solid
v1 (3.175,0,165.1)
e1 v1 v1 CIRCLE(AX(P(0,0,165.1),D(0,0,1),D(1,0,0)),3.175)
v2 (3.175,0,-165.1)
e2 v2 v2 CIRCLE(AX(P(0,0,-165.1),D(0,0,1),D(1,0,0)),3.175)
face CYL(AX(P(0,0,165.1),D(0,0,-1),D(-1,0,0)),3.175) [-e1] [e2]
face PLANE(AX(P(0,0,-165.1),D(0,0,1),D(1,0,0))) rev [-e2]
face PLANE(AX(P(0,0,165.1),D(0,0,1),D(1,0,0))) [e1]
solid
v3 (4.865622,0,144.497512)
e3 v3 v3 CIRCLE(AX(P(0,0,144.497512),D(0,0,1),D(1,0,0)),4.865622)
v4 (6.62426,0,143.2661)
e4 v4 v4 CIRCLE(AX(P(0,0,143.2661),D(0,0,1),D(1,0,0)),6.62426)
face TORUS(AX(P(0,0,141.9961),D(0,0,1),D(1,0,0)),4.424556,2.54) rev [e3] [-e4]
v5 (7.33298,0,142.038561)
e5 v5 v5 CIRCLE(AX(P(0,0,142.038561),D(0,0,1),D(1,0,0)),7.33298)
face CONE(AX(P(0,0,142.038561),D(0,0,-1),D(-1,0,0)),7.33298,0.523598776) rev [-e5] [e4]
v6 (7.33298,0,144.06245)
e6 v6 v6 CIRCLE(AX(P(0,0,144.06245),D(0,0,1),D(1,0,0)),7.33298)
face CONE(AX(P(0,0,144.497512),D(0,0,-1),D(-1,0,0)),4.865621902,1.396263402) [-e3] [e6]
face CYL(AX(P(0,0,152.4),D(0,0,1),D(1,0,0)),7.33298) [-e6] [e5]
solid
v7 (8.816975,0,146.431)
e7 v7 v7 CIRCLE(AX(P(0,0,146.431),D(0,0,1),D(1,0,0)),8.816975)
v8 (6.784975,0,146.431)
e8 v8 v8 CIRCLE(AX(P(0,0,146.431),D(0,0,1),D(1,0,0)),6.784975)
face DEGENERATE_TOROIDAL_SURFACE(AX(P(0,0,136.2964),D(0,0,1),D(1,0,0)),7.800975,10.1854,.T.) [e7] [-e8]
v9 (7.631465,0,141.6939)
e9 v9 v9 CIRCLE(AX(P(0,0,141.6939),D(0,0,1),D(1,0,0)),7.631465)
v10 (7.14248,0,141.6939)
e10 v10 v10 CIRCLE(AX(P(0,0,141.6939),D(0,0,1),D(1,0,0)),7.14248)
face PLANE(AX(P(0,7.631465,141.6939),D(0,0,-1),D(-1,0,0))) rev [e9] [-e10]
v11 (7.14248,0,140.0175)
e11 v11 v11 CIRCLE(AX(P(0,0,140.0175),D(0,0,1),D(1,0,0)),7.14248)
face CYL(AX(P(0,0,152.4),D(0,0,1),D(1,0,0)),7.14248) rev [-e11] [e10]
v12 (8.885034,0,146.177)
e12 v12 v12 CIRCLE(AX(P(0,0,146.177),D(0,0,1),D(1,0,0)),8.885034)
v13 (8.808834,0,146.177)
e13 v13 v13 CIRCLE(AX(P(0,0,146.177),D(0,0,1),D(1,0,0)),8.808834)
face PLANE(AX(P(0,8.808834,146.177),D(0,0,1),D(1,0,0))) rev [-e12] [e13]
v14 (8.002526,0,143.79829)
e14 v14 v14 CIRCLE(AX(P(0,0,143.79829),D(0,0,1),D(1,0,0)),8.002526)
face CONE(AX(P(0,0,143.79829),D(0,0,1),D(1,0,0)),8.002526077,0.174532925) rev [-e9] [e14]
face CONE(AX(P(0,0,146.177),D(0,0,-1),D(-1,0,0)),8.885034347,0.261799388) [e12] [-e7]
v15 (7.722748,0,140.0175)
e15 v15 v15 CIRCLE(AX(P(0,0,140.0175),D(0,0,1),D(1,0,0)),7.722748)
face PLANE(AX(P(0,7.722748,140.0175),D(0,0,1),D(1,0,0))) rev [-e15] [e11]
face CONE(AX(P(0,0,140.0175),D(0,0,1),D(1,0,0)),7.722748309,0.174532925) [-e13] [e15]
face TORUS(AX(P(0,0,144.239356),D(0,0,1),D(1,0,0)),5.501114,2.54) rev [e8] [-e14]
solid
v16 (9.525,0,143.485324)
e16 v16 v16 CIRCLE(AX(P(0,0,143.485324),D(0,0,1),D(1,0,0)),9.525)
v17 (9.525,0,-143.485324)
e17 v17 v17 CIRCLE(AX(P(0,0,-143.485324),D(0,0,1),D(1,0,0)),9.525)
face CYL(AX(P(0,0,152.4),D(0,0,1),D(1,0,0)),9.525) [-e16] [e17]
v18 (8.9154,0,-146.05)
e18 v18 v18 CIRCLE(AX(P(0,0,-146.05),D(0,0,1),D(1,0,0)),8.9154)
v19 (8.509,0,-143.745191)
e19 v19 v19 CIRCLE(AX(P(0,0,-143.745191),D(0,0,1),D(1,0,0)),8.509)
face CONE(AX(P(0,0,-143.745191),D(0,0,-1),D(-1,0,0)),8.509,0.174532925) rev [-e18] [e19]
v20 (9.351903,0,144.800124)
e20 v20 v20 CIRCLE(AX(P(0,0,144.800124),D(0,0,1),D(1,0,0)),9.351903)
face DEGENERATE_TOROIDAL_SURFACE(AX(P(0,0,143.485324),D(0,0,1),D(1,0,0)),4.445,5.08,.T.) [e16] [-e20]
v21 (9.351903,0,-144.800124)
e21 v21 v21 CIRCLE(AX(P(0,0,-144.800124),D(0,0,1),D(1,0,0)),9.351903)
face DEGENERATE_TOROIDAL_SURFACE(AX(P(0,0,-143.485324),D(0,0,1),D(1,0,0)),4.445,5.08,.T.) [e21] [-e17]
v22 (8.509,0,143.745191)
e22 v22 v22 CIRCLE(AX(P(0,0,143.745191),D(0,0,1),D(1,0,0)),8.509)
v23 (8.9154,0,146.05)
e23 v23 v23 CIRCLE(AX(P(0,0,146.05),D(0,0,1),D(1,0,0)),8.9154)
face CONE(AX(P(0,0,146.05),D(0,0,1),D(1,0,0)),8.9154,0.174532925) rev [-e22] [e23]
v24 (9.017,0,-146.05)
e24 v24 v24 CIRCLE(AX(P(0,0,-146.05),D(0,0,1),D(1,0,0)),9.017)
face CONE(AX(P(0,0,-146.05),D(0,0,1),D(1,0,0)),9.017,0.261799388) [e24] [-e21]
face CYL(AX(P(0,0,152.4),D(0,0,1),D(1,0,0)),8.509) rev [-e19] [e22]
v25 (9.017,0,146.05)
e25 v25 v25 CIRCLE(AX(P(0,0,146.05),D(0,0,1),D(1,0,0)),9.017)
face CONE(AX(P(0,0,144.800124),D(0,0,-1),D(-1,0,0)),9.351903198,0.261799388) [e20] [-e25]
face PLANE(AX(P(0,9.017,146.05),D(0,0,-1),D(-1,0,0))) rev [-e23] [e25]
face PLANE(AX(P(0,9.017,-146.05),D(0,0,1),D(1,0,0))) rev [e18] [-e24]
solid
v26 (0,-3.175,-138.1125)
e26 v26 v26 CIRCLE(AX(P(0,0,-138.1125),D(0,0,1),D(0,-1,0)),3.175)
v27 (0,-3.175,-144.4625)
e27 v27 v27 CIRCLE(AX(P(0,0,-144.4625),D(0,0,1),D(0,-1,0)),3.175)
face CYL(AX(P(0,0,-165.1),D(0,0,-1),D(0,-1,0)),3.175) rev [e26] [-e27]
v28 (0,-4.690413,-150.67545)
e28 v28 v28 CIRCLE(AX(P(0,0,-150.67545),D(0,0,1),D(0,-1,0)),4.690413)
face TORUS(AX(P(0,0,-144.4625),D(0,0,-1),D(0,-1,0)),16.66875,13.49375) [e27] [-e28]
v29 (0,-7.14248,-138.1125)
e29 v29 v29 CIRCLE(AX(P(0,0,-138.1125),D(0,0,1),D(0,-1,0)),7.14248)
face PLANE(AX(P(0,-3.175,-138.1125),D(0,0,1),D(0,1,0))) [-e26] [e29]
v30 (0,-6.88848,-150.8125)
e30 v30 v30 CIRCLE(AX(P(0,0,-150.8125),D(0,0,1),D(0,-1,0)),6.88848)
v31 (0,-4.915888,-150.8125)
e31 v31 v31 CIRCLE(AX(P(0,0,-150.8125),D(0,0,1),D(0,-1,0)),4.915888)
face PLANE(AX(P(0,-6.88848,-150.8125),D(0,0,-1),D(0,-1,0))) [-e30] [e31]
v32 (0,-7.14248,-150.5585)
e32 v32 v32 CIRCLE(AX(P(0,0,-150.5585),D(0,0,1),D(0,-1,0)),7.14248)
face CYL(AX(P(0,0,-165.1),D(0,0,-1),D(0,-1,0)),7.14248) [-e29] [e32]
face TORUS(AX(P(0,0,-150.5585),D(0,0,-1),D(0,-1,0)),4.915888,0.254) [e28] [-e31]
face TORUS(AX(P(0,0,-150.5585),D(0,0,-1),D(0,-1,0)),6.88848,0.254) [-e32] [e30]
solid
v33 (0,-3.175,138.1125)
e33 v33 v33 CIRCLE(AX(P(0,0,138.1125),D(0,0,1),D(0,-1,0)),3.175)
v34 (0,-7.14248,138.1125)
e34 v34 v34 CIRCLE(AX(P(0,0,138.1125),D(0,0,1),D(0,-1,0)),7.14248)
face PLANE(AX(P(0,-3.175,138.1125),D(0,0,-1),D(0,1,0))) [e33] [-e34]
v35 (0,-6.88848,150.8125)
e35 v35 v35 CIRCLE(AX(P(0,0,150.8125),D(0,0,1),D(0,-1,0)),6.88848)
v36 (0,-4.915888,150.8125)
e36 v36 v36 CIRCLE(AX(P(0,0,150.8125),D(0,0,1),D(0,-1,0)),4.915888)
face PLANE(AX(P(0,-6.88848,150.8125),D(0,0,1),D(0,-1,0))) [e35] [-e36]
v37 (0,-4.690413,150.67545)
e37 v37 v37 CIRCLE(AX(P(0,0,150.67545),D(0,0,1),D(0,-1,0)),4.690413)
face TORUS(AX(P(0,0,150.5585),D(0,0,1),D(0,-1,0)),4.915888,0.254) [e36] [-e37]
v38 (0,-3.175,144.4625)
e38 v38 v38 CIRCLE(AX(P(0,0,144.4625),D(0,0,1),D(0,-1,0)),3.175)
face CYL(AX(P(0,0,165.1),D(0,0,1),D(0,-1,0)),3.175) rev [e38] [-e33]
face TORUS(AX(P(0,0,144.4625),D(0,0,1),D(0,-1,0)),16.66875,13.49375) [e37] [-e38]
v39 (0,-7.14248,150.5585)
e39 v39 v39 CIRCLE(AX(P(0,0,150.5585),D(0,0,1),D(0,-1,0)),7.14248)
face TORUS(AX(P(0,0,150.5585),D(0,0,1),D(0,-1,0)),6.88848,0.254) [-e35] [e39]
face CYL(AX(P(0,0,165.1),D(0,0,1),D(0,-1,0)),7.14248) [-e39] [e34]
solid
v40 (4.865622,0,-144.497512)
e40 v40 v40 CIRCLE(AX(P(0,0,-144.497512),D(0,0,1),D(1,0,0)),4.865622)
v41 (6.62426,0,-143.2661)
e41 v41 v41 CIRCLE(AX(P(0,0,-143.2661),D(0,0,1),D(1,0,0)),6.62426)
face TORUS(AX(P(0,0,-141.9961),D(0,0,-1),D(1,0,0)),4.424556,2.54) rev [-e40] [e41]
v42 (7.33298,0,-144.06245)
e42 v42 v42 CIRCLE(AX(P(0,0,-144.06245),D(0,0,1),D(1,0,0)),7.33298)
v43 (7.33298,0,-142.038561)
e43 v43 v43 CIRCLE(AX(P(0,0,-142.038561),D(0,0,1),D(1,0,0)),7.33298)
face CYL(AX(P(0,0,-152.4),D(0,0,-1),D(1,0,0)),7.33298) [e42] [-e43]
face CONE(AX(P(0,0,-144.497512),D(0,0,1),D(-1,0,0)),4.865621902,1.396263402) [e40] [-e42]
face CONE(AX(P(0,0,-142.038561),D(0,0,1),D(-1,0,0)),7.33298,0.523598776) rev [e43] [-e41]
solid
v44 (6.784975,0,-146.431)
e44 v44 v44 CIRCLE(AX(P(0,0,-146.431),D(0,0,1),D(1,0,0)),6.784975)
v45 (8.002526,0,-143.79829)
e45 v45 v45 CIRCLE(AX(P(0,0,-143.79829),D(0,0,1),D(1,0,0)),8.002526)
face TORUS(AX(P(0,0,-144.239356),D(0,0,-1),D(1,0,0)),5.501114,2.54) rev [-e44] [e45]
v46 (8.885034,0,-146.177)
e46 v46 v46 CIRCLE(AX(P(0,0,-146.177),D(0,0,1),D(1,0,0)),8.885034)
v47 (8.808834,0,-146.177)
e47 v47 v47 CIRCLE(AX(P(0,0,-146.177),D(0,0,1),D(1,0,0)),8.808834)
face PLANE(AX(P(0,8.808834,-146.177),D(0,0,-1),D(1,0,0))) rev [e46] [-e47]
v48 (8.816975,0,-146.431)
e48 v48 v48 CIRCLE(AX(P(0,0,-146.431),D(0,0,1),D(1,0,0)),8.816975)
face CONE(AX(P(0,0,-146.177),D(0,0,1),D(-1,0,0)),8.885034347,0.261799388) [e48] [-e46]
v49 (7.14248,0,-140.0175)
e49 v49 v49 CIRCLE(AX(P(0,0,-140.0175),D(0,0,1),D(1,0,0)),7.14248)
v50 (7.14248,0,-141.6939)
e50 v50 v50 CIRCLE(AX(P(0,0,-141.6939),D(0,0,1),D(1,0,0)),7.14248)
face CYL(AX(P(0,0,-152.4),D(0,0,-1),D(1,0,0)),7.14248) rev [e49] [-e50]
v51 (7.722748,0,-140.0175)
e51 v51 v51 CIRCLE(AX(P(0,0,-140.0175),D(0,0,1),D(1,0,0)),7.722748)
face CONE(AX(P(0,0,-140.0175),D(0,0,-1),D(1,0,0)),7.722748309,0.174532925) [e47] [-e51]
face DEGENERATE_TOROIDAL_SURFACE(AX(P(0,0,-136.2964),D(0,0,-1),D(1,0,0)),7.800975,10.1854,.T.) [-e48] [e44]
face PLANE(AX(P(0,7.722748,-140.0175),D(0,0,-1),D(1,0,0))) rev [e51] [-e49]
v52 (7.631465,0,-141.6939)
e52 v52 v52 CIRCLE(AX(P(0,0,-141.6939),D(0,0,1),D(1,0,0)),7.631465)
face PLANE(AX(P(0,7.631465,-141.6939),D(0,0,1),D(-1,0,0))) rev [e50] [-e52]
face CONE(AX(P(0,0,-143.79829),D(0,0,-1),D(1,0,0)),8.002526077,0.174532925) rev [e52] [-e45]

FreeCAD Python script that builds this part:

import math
import FreeCAD as App
import Part
import Sketcher

V = App.Vector
Q = App.Units.Quantity

doc = App.newDocument("Part")
body = doc.addObject("PartDesign::Body", "Body")

# Sketch on XY plane
sketch1 = body.newObject("Sketcher::SketchObject", "Sketch")
sketch1.AttachmentSupport = (doc.getObject("XY_Plane"), [""])
sketch1.MapMode = "FlatFace"
sketch1.addGeometry(Part.Circle(V(0, 0, 0), V(0, 0, 1), 3.2), False)
sketch1.addConstraint([
    Sketcher.Constraint("Coincident", 0, 3, -1, 1),
    Sketcher.Constraint("Diameter", 0, Q("0.25 in")),
])
pad1 = body.newObject("PartDesign::Pad", "Pad")
pad1.Profile = sketch1
pad1.Type = "TwoLengths"
pad1.Length = Q("6.5 in")
pad1.Length2 = Q("6.5 in")
body2 = doc.addObject("PartDesign::Body", "Body001")

# Sketch on YZ plane
sketch2 = body2.newObject("Sketcher::SketchObject", "Sketch001")
sketch2.AttachmentSupport = (doc.getObject("YZ_Plane001"), [""])
sketch2.MapMode = "FlatFace"
sketch2.addGeometry([
    Part.LineSegment(V(7.14, 150.56, 0), V(7.14, 138.11, 0)),  # 0
    Part.LineSegment(V(7.14, 138.11, 0), V(3.17, 138.11, 0)),  # 1
    Part.LineSegment(V(3.17, 138.11, 0), V(3.17, 144.46, 0)),  # 2
    Part.ArcOfCircle(Part.Circle(V(16.67, 144.46, 0), V(0, 0, 1), 13.49), math.radians(153), math.radians(180)),  # 3
    Part.ArcOfCircle(Part.Circle(V(4.92, 150.56, 0), V(0, 0, 1), 0.25), math.radians(90), math.radians(153)),  # 4
    Part.LineSegment(V(4.92, 150.81, 0), V(6.89, 150.81, 0)),  # 5
    Part.ArcOfCircle(Part.Circle(V(6.89, 150.56, 0), V(0, 0, 1), 0.25), math.radians(0), math.radians(90)),  # 6
], False)
sketch2.addConstraint([
    Sketcher.Constraint("Coincident", 0, 2, 1, 1),
    Sketcher.Constraint("Coincident", 1, 2, 2, 1),
    Sketcher.Constraint("Tangent", 2, 2, 3, 2),
    Sketcher.Constraint("Tangent", 3, 1, 4, 2),
    Sketcher.Constraint("Tangent", 4, 1, 5, 1),
    Sketcher.Constraint("Tangent", 5, 2, 6, 2),
    Sketcher.Constraint("Tangent", 6, 1, 0, 1),
    Sketcher.Constraint("Vertical", 0),
    Sketcher.Constraint("Horizontal", 1),
    Sketcher.Constraint("Vertical", 2),
    Sketcher.Constraint("Horizontal", 5),
    Sketcher.Constraint("Equal", 4, 6),
    Sketcher.Constraint("Radius", 4, Q("0.01 in")),
    Sketcher.Constraint("Radius", 3, Q("0.53125 in")),
    Sketcher.Constraint("DistanceY", 0, 2, 0, 1, Q("0.49 in")),
    Sketcher.Constraint("DistanceY", 2, 1, 2, 2, Q("0.25 in")),
    Sketcher.Constraint("DistanceX", 1, 2, 1, 1, Q("0.1562 in")),
    Sketcher.Constraint("DistanceX", -1, 1, 3, 3, Q("0.65625 in")),
    Sketcher.Constraint("DistanceY", -1, 1, 3, 3, Q("5.6875 in")),
])
revolution = body2.newObject("PartDesign::Revolution", "Revolution")
revolution.Profile = sketch2
revolution.ReferenceAxis = (sketch2, ["V_Axis"])
revolution.Angle = 360
body3 = doc.addObject("PartDesign::Body", "Body002")

# Sketch on YZ plane
sketch3 = body3.newObject("Sketcher::SketchObject", "Sketch002")
sketch3.AttachmentSupport = (doc.getObject("YZ_Plane002"), [""])
sketch3.MapMode = "FlatFace"
sketch3.addGeometry([
    Part.LineSegment(V(9.35, 144.8, 0), V(9.02, 146.05, 0)),  # 0
    Part.LineSegment(V(9.02, 146.05, 0), V(8.92, 146.05, 0)),  # 1
    Part.LineSegment(V(8.92, 146.05, 0), V(8.51, 143.75, 0)),  # 2
    Part.LineSegment(V(8.51, 143.75, 0), V(8.51, -143.75, 0)),  # 3
    Part.LineSegment(V(8.51, -143.75, 0), V(8.92, -146.05, 0)),  # 4
    Part.LineSegment(V(8.92, -146.05, 0), V(9.02, -146.05, 0)),  # 5
    Part.LineSegment(V(9.02, -146.05, 0), V(9.35, -144.8, 0)),  # 6
    Part.ArcOfCircle(Part.Circle(V(4.44, -143.49, 0), V(0, 0, 1), 5.08), math.radians(-15), math.radians(0)),  # 7
    Part.LineSegment(V(9.53, -143.49, 0), V(9.53, 143.49, 0)),  # 8
    Part.ArcOfCircle(Part.Circle(V(4.44, 143.49, 0), V(0, 0, 1), 5.08), math.radians(0), math.radians(15)),  # 9
], False)
sketch3.addConstraint([
    Sketcher.Constraint("Coincident", 0, 2, 1, 1),
    Sketcher.Constraint("Coincident", 1, 2, 2, 1),
    Sketcher.Constraint("Coincident", 2, 2, 3, 1),
    Sketcher.Constraint("Coincident", 3, 2, 4, 1),
    Sketcher.Constraint("Coincident", 4, 2, 5, 1),
    Sketcher.Constraint("Coincident", 5, 2, 6, 1),
    Sketcher.Constraint("Tangent", 6, 2, 7, 1),
    Sketcher.Constraint("Tangent", 7, 2, 8, 1),
    Sketcher.Constraint("Tangent", 8, 2, 9, 1),
    Sketcher.Constraint("Tangent", 9, 2, 0, 1),
    Sketcher.Constraint("Horizontal", 1),
    Sketcher.Constraint("Vertical", 3),
    Sketcher.Constraint("Horizontal", 5),
    Sketcher.Constraint("Vertical", 8),
    Sketcher.Constraint("Equal", 7, 9),
    Sketcher.Constraint("Symmetric", 1, 2, 4, 2, -1),
    Sketcher.Constraint("Symmetric", 6, 2, 9, 2, -1),
    Sketcher.Constraint("Equal", 2, 4),
    Sketcher.Constraint("Radius", 7, Q("0.2 in")),
    Sketcher.Constraint("Angle", 0, Q("105 deg")),
    Sketcher.Constraint("Angle", 2, Q("-100 deg")),
    Sketcher.Constraint("DistanceY", 4, 2, 1, 2, Q("11.5 in")),
    Sketcher.Constraint("DistanceX", 1, 2, 1, 1, Q("0.004 in")),
    Sketcher.Constraint("DistanceX", 9, 3, 0, 2, Q("0.18 in")),
    Sketcher.Constraint("DistanceX", 2, 2, 0, 2, Q("0.02 in")),
    Sketcher.Constraint("DistanceX", -1, 1, 7, 3, Q("0.175 in")),
])
revolution2 = body3.newObject("PartDesign::Revolution", "Revolution001")
revolution2.Profile = sketch3
revolution2.ReferenceAxis = (sketch3, ["V_Axis"])
revolution2.Angle = 360
body4 = doc.addObject("PartDesign::Body", "Body003")

# Sketch on YZ plane
sketch4 = body4.newObject("Sketcher::SketchObject", "Sketch003")
sketch4.AttachmentSupport = (doc.getObject("YZ_Plane003"), [""])
sketch4.MapMode = "FlatFace"
sketch4.addGeometry([
    Part.LineSegment(V(7.14, 140.02, 0), V(7.72, 140.02, 0)),  # 0
    Part.LineSegment(V(7.72, 140.02, 0), V(8.81, 146.18, 0)),  # 1
    Part.LineSegment(V(8.81, 146.18, 0), V(8.89, 146.18, 0)),  # 2
    Part.LineSegment(V(8.89, 146.18, 0), V(8.82, 146.43, 0)),  # 3
    Part.ArcOfCircle(Part.Circle(V(7.8, 136.3, 0), V(0, 0, 1), 10.19), math.radians(84.28), math.radians(95.72)),  # 4
    Part.ArcOfCircle(Part.Circle(V(5.5, 144.24, 0), V(0, 0, 1), 2.54), math.radians(-10), math.radians(60)),  # 5
    Part.LineSegment(V(8, 143.8, 0), V(7.63, 141.69, 0)),  # 6
    Part.LineSegment(V(7.63, 141.69, 0), V(7.14, 141.69, 0)),  # 7
    Part.LineSegment(V(7.14, 141.69, 0), V(7.14, 140.02, 0)),  # 8
], False)
sketch4.addConstraint([
    Sketcher.Constraint("Coincident", 0, 2, 1, 1),
    Sketcher.Constraint("Coincident", 1, 2, 2, 1),
    Sketcher.Constraint("Coincident", 2, 2, 3, 1),
    Sketcher.Constraint("Coincident", 3, 2, 4, 1),
    Sketcher.Constraint("Coincident", 4, 2, 5, 2),
    Sketcher.Constraint("Tangent", 5, 1, 6, 1),
    Sketcher.Constraint("Coincident", 6, 2, 7, 1),
    Sketcher.Constraint("Coincident", 7, 2, 8, 1),
    Sketcher.Constraint("Coincident", 8, 2, 0, 1),
    Sketcher.Constraint("Horizontal", 0),
    Sketcher.Constraint("Horizontal", 2),
    Sketcher.Constraint("Horizontal", 7),
    Sketcher.Constraint("Vertical", 8),
    Sketcher.Constraint("Parallel", 1, 6),
    Sketcher.Constraint("Horizontal", 3, 2, 4, 2),
    Sketcher.Constraint("Radius", 5, Q("0.1 in")),
    Sketcher.Constraint("Angle", 1, Q("80 deg")),
    Sketcher.Constraint("Angle", 3, Q("105 deg")),
    Sketcher.Constraint("Radius", 4, Q("0.401 in")),
    Sketcher.Constraint("DistanceX", 2, 1, 2, 2, Q("0.003 in")),
    Sketcher.Constraint("DistanceY", 8, 2, 8, 1, Q("0.066 in")),
    Sketcher.Constraint("DistanceY", 1, 2, 3, 2, Q("0.01 in")),
    Sketcher.Constraint("DistanceX", 4, 3, 3, 2, Q("0.04 in")),
    Sketcher.Constraint("DistanceY", -1, 1, 4, 3, Q("5.366 in")),
    Sketcher.Constraint("DistanceY", -1, 1, 0, 2, Q("5.5125 in")),
    Sketcher.Constraint("DistanceX", -1, 1, 7, 2, Q("0.2812 in")),
    Sketcher.Constraint("DistanceX", 0, 1, 0, 2, Q("0.580268 mm")),
    Sketcher.Constraint("DistanceX", 7, 2, 7, 1, Q("0.488985 mm")),
])
revolution3 = body4.newObject("PartDesign::Revolution", "Revolution002")
revolution3.Profile = sketch4
revolution3.ReferenceAxis = (sketch4, ["V_Axis"])
revolution3.Angle = 360
body5 = doc.addObject("PartDesign::Body", "Body004")

# Sketch on YZ plane
sketch5 = body5.newObject("Sketcher::SketchObject", "Sketch004")
sketch5.AttachmentSupport = (doc.getObject("YZ_Plane004"), [""])
sketch5.MapMode = "FlatFace"
sketch5.addGeometry([
    Part.LineSegment(V(6.6, 143.3, 0), V(7.3, 142, 0)),
    Part.LineSegment(V(7.3, 142, 0), V(7.3, 144.1, 0)),
    Part.LineSegment(V(7.3, 144.1, 0), V(4.9, 144.5, 0)),
    Part.ArcOfCircle(Part.Circle(V(4.4, 142, 0), V(0, 0, 1), 2.5), math.radians(30), math.radians(80)),
], False)
sketch5.addConstraint([
    Sketcher.Constraint("Coincident", 0, 2, 1, 1),
    Sketcher.Constraint("Coincident", 1, 2, 2, 1),
    Sketcher.Constraint("Tangent", 2, 2, 3, 2),
    Sketcher.Constraint("Tangent", 3, 1, 0, 1),
    Sketcher.Constraint("Vertical", 1),
    Sketcher.Constraint("Radius", 3, Q("0.1 in")),
    Sketcher.Constraint("Angle", 0, Q("-60 deg")),
    Sketcher.Constraint("Angle", 2, Q("170 deg")),
    Sketcher.Constraint("DistanceX", -1, 1, 0, 2, Q("0.2887 in")),
    Sketcher.Constraint("DistanceY", 1, 1, 1, 2, Q("2.023889 mm")),
    Sketcher.Constraint("DistanceY", -1, 1, 3, 3, Q("141.9961 mm")),
])
revolution4 = body5.newObject("PartDesign::Revolution", "Revolution003")
revolution4.Profile = sketch5
revolution4.ReferenceAxis = (sketch5, ["V_Axis"])
revolution4.Angle = 360
body6 = doc.addObject("PartDesign::Body", "Body005")
doc.recompute()

mirroring = doc.addObject("Part::Mirroring", "Mirroring")
mirroring.Source = body2
mirroring.Base = V(0, 0, 0)
mirroring.Normal = V(0, 0, 1)
body6.BaseFeature = mirroring
doc.recompute()
body7 = doc.addObject("PartDesign::Body", "Body006")
doc.recompute()

mirroring2 = doc.addObject("Part::Mirroring", "Mirroring001")
mirroring2.Source = body4
mirroring2.Base = V(0, 0, 0)
mirroring2.Normal = V(0, 0, 1)
body7.BaseFeature = mirroring2
doc.recompute()
body8 = doc.addObject("PartDesign::Body", "Body007")
doc.recompute()

mirroring3 = doc.addObject("Part::Mirroring", "Mirroring002")
mirroring3.Source = body5
mirroring3.Base = V(0, 0, 0)
mirroring3.Normal = V(0, 0, 1)
body8.BaseFeature = mirroring3
doc.recompute()
mirroring.Visibility = False
mirroring2.Visibility = False
mirroring3.Visibility = False

doc.recompute()
